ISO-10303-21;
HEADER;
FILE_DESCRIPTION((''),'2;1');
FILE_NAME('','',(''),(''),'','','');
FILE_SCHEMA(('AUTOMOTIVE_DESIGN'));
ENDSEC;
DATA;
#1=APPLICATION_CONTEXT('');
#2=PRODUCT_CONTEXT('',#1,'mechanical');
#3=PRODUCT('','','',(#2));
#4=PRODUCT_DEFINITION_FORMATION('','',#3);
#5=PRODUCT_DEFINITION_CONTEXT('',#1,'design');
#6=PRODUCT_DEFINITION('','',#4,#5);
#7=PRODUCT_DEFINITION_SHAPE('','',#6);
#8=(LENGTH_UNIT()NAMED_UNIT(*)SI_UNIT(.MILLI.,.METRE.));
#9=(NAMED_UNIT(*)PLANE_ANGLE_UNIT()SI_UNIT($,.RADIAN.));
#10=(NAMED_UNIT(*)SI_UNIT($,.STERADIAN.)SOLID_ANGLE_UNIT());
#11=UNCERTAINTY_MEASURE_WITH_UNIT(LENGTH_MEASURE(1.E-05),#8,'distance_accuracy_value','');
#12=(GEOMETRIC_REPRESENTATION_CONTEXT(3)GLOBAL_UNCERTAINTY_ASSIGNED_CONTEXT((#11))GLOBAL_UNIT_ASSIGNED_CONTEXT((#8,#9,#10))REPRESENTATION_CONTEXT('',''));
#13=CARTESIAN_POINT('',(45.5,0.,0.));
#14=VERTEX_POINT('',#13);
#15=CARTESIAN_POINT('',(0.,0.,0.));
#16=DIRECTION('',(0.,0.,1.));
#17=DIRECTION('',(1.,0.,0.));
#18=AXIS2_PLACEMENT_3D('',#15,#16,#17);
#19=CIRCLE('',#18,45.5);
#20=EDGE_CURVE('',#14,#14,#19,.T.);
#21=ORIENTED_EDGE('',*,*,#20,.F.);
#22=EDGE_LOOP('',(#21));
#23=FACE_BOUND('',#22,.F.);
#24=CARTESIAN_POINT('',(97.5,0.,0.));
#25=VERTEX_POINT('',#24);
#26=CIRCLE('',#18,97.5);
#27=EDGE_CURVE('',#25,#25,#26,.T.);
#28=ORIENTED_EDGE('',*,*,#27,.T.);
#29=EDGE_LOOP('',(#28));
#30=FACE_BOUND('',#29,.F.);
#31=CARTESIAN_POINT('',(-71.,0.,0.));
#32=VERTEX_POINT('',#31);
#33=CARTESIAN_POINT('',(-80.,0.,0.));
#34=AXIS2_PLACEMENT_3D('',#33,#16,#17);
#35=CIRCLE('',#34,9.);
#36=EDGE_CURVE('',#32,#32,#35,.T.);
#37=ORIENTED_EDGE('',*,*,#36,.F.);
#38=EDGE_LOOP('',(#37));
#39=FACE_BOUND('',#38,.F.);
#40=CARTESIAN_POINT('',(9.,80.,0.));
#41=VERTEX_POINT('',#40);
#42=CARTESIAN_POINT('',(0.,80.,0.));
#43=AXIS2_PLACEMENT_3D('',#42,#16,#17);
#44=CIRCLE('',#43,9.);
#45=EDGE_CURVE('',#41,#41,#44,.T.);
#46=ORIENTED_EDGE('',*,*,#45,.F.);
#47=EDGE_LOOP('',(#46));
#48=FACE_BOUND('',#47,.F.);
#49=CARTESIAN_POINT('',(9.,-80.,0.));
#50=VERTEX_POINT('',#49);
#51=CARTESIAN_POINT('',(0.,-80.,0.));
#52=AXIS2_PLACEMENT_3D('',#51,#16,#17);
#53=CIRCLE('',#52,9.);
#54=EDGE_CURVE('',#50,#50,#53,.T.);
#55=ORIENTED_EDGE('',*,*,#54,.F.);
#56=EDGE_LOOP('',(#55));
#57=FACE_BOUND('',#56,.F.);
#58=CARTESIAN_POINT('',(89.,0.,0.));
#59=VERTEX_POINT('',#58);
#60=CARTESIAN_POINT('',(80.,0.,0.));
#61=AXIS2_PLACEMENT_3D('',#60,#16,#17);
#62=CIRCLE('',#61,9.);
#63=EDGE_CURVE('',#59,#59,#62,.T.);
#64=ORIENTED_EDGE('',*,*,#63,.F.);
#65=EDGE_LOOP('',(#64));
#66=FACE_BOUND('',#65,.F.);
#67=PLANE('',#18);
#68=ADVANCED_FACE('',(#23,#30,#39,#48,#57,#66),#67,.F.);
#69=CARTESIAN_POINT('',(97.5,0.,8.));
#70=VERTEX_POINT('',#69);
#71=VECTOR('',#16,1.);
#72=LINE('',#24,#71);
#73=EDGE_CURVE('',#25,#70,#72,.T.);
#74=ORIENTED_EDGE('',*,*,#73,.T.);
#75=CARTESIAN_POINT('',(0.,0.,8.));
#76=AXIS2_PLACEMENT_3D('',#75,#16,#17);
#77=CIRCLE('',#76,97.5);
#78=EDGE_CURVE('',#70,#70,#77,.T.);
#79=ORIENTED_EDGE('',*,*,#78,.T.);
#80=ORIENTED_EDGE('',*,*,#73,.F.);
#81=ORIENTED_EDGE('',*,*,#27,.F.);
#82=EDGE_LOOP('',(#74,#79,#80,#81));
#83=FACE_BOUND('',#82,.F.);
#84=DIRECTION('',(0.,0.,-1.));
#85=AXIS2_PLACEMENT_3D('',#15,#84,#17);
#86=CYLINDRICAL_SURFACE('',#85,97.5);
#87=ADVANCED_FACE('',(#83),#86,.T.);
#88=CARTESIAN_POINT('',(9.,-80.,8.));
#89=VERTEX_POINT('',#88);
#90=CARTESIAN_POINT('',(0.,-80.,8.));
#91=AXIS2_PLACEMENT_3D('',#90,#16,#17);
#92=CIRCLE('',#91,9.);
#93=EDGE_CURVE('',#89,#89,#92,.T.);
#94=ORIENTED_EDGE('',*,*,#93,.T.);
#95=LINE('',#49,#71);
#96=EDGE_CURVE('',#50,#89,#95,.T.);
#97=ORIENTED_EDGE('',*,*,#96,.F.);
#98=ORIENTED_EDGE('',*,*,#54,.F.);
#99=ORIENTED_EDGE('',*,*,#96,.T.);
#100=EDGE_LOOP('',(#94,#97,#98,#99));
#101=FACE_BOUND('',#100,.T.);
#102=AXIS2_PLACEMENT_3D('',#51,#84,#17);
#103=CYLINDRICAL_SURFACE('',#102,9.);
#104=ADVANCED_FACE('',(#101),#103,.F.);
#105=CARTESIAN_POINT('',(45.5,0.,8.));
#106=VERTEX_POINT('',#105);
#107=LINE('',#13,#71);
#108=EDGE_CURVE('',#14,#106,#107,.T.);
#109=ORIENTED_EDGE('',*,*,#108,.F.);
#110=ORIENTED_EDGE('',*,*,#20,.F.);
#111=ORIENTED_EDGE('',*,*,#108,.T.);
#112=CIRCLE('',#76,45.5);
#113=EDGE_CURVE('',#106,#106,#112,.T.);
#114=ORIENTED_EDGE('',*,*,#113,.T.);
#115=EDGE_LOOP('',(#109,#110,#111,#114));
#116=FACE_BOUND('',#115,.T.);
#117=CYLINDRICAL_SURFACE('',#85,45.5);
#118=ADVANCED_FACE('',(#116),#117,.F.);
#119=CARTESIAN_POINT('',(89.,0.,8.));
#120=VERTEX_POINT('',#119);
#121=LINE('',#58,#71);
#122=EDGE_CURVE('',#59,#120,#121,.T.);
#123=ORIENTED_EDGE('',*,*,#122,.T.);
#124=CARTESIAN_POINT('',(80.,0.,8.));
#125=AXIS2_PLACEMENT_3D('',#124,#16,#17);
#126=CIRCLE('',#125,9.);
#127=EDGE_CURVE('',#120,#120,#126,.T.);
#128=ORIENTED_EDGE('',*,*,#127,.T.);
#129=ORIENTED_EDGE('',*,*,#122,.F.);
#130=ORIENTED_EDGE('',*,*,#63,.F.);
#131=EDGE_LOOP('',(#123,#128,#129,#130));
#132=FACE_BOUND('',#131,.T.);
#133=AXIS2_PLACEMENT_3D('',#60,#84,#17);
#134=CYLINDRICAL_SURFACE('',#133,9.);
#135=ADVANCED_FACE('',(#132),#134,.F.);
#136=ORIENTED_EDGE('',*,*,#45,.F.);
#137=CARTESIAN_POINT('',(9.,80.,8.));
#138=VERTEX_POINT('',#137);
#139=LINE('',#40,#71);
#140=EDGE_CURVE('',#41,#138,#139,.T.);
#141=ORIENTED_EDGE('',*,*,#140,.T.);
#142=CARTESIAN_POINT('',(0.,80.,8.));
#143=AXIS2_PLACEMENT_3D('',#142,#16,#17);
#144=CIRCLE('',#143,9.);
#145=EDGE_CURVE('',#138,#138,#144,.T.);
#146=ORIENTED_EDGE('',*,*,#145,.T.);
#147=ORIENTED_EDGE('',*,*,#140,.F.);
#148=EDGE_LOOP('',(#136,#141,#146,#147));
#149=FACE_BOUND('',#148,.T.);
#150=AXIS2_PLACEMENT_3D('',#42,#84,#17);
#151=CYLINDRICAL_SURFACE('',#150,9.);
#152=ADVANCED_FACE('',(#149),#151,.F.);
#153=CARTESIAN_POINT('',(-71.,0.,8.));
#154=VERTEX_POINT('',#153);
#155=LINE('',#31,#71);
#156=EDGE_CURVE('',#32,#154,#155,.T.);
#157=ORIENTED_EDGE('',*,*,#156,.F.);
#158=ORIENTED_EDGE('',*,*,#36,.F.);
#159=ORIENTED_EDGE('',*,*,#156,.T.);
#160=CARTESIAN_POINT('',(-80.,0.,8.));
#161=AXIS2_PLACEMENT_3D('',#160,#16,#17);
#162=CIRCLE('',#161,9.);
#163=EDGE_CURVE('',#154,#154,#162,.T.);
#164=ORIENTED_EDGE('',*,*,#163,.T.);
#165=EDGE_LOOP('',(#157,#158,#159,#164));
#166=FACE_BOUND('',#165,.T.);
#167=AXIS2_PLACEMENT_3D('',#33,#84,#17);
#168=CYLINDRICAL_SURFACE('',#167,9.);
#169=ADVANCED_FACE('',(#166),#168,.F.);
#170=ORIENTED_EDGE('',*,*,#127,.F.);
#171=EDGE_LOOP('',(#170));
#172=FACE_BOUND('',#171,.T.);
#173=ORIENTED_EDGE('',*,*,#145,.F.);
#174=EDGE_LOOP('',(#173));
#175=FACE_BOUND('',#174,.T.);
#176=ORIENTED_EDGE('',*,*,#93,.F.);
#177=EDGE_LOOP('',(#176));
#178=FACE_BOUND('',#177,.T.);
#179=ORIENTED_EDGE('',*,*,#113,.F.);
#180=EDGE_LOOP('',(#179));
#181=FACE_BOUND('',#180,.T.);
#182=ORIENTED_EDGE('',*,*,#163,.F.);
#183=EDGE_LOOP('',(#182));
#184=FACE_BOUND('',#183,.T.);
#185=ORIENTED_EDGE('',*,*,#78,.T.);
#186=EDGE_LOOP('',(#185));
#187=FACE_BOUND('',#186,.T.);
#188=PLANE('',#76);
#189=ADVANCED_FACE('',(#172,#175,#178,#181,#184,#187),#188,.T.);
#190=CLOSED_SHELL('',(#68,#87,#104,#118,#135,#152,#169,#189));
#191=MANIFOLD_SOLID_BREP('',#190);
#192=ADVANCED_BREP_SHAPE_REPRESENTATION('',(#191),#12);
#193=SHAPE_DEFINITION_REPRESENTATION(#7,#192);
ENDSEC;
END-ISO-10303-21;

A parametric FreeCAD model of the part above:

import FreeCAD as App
import Part
import Sketcher
from FreeCAD import Vector

doc = App.newDocument("Part")
params = doc.addObject("Spreadsheet::Sheet", "Params")
for row, (alias, value) in enumerate([
    ("sketch1_diameter", "195 mm"),
    ("sketch1_diameter2", "18 mm"),
    ("sketch1_diameter3", "91 mm"),
    ("pad1_length", "8 mm"),
], start=1):
    params.set(f"A{row}", alias)
    params.set(f"B{row}", "=" + value)
    params.setAlias(f"B{row}", alias)

body = doc.addObject("PartDesign::Body", "Body")

sketch1 = body.newObject("Sketcher::SketchObject", "Sketch")
sketch1.AttachmentSupport = (doc.getObject("XY_Plane"), [""])
sketch1.MapMode = "FlatFace"
sketch1.addGeometry([
    Part.Circle(Vector(0, 0, 0), Vector(0, 0, 1), 98),
    Part.Circle(Vector(0, -80, 0), Vector(0, 0, 1), 9),
    Part.Circle(Vector(-80, 0, 0), Vector(0, 0, 1), 9),
    Part.Circle(Vector(0, 0, 0), Vector(0, 0, 1), 46),
    Part.Circle(Vector(80, 0, 0), Vector(0, 0, 1), 9),
    Part.Circle(Vector(0, 80, 0), Vector(0, 0, 1), 9),
], False)
sketch1.addConstraint([
    Sketcher.Constraint("Coincident", 0, 3, -1, 1),
    Sketcher.Constraint("Coincident", 3, 3, -1, 1),
    Sketcher.Constraint("Equal", 1, 2),
    Sketcher.Constraint("Equal", 2, 4),
    Sketcher.Constraint("Equal", 4, 5),
    Sketcher.Constraint("Symmetric", 2, 3, 4, 3, -1, 1),
    Sketcher.Constraint("Symmetric", 1, 3, 5, 3, -1, 1),
    Sketcher.Constraint("PointOnObject", 1, 3, -2),
    Sketcher.Constraint("PointOnObject", 2, 3, -1),
    Sketcher.Constraint("Diameter", 0, 195.0),
    Sketcher.Constraint("Diameter", 1, 18.0),
    Sketcher.Constraint("Diameter", 3, 91.0),
    Sketcher.Constraint("DistanceX", 2, 3, 4, 3, 160.0),
    Sketcher.Constraint("DistanceY", 1, 3, 5, 3, 160.0),
])
sketch1.setExpression("Constraints[9]", "Params.sketch1_diameter")
sketch1.setExpression("Constraints[10]", "Params.sketch1_diameter2")
sketch1.setExpression("Constraints[11]", "Params.sketch1_diameter3")
pad1 = body.newObject("PartDesign::Pad", "Pad")
pad1.Profile = sketch1
pad1.setExpression("Length", "Params.pad1_length")

doc.recompute()
